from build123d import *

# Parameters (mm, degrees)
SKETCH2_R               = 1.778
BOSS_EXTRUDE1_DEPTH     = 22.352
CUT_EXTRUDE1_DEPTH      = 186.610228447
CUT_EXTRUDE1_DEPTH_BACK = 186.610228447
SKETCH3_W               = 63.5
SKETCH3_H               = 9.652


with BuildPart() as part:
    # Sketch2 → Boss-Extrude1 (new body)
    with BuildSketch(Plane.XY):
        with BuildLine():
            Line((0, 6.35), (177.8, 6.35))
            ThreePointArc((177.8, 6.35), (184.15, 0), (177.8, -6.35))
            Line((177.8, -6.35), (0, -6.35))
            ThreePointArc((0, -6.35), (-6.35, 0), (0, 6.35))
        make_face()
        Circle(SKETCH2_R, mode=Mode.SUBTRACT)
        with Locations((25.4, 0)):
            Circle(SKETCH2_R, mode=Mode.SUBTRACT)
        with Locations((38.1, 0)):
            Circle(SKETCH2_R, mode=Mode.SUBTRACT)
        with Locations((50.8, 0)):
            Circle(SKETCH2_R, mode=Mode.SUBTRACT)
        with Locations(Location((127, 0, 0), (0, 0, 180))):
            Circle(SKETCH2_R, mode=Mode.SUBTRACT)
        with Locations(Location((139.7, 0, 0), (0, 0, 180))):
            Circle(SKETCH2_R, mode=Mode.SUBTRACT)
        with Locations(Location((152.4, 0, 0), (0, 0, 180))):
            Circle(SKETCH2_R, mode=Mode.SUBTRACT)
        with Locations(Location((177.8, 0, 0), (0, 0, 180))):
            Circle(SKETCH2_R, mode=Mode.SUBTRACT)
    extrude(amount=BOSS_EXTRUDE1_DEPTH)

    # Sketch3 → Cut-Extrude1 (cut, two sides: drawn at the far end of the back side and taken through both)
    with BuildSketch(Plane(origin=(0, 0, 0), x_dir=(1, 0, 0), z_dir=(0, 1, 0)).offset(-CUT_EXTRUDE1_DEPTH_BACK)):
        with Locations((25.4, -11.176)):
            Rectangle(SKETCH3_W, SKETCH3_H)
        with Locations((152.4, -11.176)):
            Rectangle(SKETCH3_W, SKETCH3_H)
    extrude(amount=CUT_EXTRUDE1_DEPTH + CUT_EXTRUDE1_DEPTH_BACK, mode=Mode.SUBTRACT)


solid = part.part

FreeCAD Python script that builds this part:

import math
import FreeCAD as App
import Part
import Sketcher
from FreeCAD import Vector
Q = App.Units.Quantity


def add_polygon(sketch, points):
    """Adds a closed chain of lines whose ends are joined by coincident constraints."""
    first, n = sketch.GeometryCount, len(points)
    for a, b in zip(points, points[1:] + points[:1]):
        sketch.addGeometry(Part.LineSegment(App.Vector(*a, 0), App.Vector(*b, 0)), False)
    for i in range(n):
        sketch.addConstraint(Sketcher.Constraint("Coincident", first + i, 2, first + (i + 1) % n, 1))

doc = App.newDocument("Part")
params = doc.addObject("Spreadsheet::Sheet", "Params")
for row, (alias, value) in enumerate([
    ("sketch1_diameter", "0.14 in"),
    ("sketch1_width", "7 in"),
    ("sketch1_radius", "0.25 in"),
    ("pad1_length", "0.88 in"),
    ("sketch2_width", "2.5 in"),
    ("sketch2_height", "0.38 in"),
], start=1):
    params.set(f"A{row}", alias)
    params.set(f"B{row}", "=" + value)
    params.setAlias(f"B{row}", alias)

body = doc.addObject("PartDesign::Body", "Body")

sketch1 = body.newObject("Sketcher::SketchObject", "Sketch")
sketch1.AttachmentSupport = (doc.getObject("XY_Plane"), [""])
sketch1.MapMode = "FlatFace"
sketch1.addGeometry(Part.LineSegment(Vector(177.8, 6.35, 0), Vector(0, 6.35, 0)), False)
sketch1.addGeometry(Part.ArcOfCircle(Part.Circle(Vector(0, 0, 0), Vector(0, 0, 1), 6.35), math.radians(90), math.radians(270)), False)
sketch1.addGeometry(Part.LineSegment(Vector(0, -6.35, 0), Vector(177.8, -6.35, 0)), False)
sketch1.addGeometry(Part.ArcOfCircle(Part.Circle(Vector(177.8, 0, 0), Vector(0, 0, 1), 6.35), math.radians(-90), math.radians(90)), False)
sketch1.addGeometry(Part.Circle(Vector(177.8, 0, 0), Vector(0, 0, 1), 1.778), False)
sketch1.addGeometry(Part.Circle(Vector(152.4, 0, 0), Vector(0, 0, 1), 1.778), False)
sketch1.addGeometry(Part.Circle(Vector(139.7, 0, 0), Vector(0, 0, 1), 1.778), False)
sketch1.addGeometry(Part.Circle(Vector(127, 0, 0), Vector(0, 0, 1), 1.778), False)
sketch1.addGeometry(Part.Circle(Vector(50.8, 0, 0), Vector(0, 0, 1), 1.778), False)
sketch1.addGeometry(Part.Circle(Vector(38.1, 0, 0), Vector(0, 0, 1), 1.778), False)
sketch1.addGeometry(Part.Circle(Vector(25.4, 0, 0), Vector(0, 0, 1), 1.778), False)
sketch1.addGeometry(Part.Circle(Vector(0, 0, 0), Vector(0, 0, 1), 1.778), False)
sketch1.addConstraint(Sketcher.Constraint("Tangent", 0, 2, 1, 1))
sketch1.addConstraint(Sketcher.Constraint("Tangent", 1, 2, 2, 1))
sketch1.addConstraint(Sketcher.Constraint("Tangent", 2, 2, 3, 1))
sketch1.addConstraint(Sketcher.Constraint("Tangent", 3, 2, 0, 1))
sketch1.addConstraint(Sketcher.Constraint("Horizontal", 0))
sketch1.addConstraint(Sketcher.Constraint("Horizontal", 2))
sketch1.addConstraint(Sketcher.Constraint("Coincident", 1, 3, -1, 1))
sketch1.addConstraint(Sketcher.Constraint("Coincident", 11, 3, -1, 1))
sketch1.addConstraint(Sketcher.Constraint("Coincident", 4, 3, 3, 3))
sketch1.addConstraint(Sketcher.Constraint("Equal", 4, 5))
sketch1.addConstraint(Sketcher.Constraint("Equal", 5, 6))
sketch1.addConstraint(Sketcher.Constraint("Equal", 6, 7))
sketch1.addConstraint(Sketcher.Constraint("Equal", 7, 8))
sketch1.addConstraint(Sketcher.Constraint("Equal", 8, 9))
sketch1.addConstraint(Sketcher.Constraint("Equal", 9, 10))
sketch1.addConstraint(Sketcher.Constraint("Equal", 10, 11))
sketch1.addConstraint(Sketcher.Constraint("PointOnObject", 5, 3, -1))
sketch1.addConstraint(Sketcher.Constraint("PointOnObject", 6, 3, -1))
sketch1.addConstraint(Sketcher.Constraint("PointOnObject", 7, 3, -1))
sketch1.addConstraint(Sketcher.Constraint("PointOnObject", 8, 3, -1))
sketch1.addConstraint(Sketcher.Constraint("PointOnObject", 9, 3, -1))
sketch1.addConstraint(Sketcher.Constraint("PointOnObject", 10, 3, -1))
sketch1.addConstraint(Sketcher.Constraint("Diameter", 4, Q("0.14 in")))
sketch1.addConstraint(Sketcher.Constraint("DistanceX", 0, 2, 0, 1, Q("7 in")))
sketch1.addConstraint(Sketcher.Constraint("Radius", 1, Q("0.25 in")))
sketch1.addConstraint(Sketcher.Constraint("DistanceX", -1, 1, 5, 3, Q("6 in")))
sketch1.addConstraint(Sketcher.Constraint("DistanceX", -1, 1, 7, 3, Q("5 in")))
sketch1.addConstraint(Sketcher.Constraint("DistanceX", -1, 1, 8, 3, Q("2 in")))
sketch1.addConstraint(Sketcher.Constraint("DistanceX", -1, 1, 10, 3, Q("1 in")))
sketch1.addConstraint(Sketcher.Constraint("DistanceX", 9, 3, 6, 3, Q("4 in")))
sketch1.addConstraint(Sketcher.Constraint("DistanceX", -1, 1, 6, 3, Q("5.5 in")))
sketch1.setExpression("Constraints[22]", "Params.sketch1_diameter")
sketch1.setExpression("Constraints[23]", "Params.sketch1_width")
sketch1.setExpression("Constraints[24]", "Params.sketch1_radius")
pad1 = body.newObject("PartDesign::Pad", "Pad")
pad1.Profile = sketch1
pad1.setExpression("Length", "Params.pad1_length")

sketch2 = body.newObject("Sketcher::SketchObject", "Sketch001")
sketch2.AttachmentSupport = (doc.getObject("XZ_Plane"), [""])
sketch2.MapMode = "FlatFace"
add_polygon(sketch2, [(-6.35, 6.35), (-6.35, 16.002), (57.15, 16.002), (57.15, 6.35)])
add_polygon(sketch2, [(120.65, 6.35), (120.65, 16.002), (184.15, 16.002), (184.15, 6.35)])
sketch2.addConstraint(Sketcher.Constraint("Vertical", 0))
sketch2.addConstraint(Sketcher.Constraint("Horizontal", 1))
sketch2.addConstraint(Sketcher.Constraint("Vertical", 2))
sketch2.addConstraint(Sketcher.Constraint("Horizontal", 3))
sketch2.addConstraint(Sketcher.Constraint("Vertical", 4))
sketch2.addConstraint(Sketcher.Constraint("Horizontal", 5))
sketch2.addConstraint(Sketcher.Constraint("Vertical", 6))
sketch2.addConstraint(Sketcher.Constraint("Horizontal", 7))
sketch2.addConstraint(Sketcher.Constraint("Horizontal", 1, 2, 4, 2))
sketch2.addConstraint(Sketcher.Constraint("Horizontal", 3, 2, 6, 2))
sketch2.addConstraint(Sketcher.Constraint("Equal", 3, 5))
sketch2.addConstraint(Sketcher.Constraint("DistanceX", 1, 1, 1, 2, Q("2.5 in")))
sketch2.addConstraint(Sketcher.Constraint("DistanceX", 0, 2, 4, 2, Q("5 in")))
sketch2.addConstraint(Sketcher.Constraint("DistanceY", 0, 1, 0, 2, Q("0.38 in")))
sketch2.addConstraint(Sketcher.Constraint("DistanceX", 0, 2, -1, 1, Q("0.25 in")))
sketch2.addConstraint(Sketcher.Constraint("DistanceY", -1, 1, 0, 2, Q("0.63 in")))
sketch2.setExpression("Constraints[19]", "Params.sketch2_width")
sketch2.setExpression("Constraints[21]", "Params.sketch2_height")
pocket1 = body.newObject("PartDesign::Pocket", "Pocket")
pocket1.Profile = sketch2
pocket1.Type = "ThroughAll"
pocket1.Midplane = True

doc.recompute()
